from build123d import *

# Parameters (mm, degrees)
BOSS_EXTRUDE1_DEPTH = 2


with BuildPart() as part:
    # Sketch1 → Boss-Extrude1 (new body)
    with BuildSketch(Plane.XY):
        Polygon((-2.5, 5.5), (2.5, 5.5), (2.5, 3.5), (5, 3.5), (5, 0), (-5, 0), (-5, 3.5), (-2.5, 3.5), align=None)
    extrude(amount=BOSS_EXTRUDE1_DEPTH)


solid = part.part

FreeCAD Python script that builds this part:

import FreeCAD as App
import Part
import Sketcher

V = App.Vector
Q = App.Units.Quantity

doc = App.newDocument("Part")
body = doc.addObject("PartDesign::Body", "Body")

sketch1 = body.newObject("Sketcher::SketchObject", "Sketch")
sketch1.AttachmentSupport = (doc.getObject("XY_Plane"), [""])
sketch1.MapMode = "FlatFace"
sketch1.addGeometry(Part.LineSegment(V(2.5, 5.5, 0), V(-2.5, 5.5, 0)), False)
sketch1.addGeometry(Part.LineSegment(V(-2.5, 5.5, 0), V(-2.5, 3.5, 0)), False)
sketch1.addGeometry(Part.LineSegment(V(-2.5, 3.5, 0), V(-5, 3.5, 0)), False)
sketch1.addGeometry(Part.LineSegment(V(-5, 3.5, 0), V(-5, 0, 0)), False)
sketch1.addGeometry(Part.LineSegment(V(-5, 0, 0), V(5, 0, 0)), False)
sketch1.addGeometry(Part.LineSegment(V(5, 0, 0), V(5, 3.5, 0)), False)
sketch1.addGeometry(Part.LineSegment(V(5, 3.5, 0), V(2.5, 3.5, 0)), False)
sketch1.addGeometry(Part.LineSegment(V(2.5, 3.5, 0), V(2.5, 5.5, 0)), False)
sketch1.addConstraint(Sketcher.Constraint("Coincident", 0, 2, 1, 1))
sketch1.addConstraint(Sketcher.Constraint("Coincident", 1, 2, 2, 1))
sketch1.addConstraint(Sketcher.Constraint("Coincident", 2, 2, 3, 1))
sketch1.addConstraint(Sketcher.Constraint("Coincident", 3, 2, 4, 1))
sketch1.addConstraint(Sketcher.Constraint("Coincident", 4, 2, 5, 1))
sketch1.addConstraint(Sketcher.Constraint("Coincident", 5, 2, 6, 1))
sketch1.addConstraint(Sketcher.Constraint("Coincident", 6, 2, 7, 1))
sketch1.addConstraint(Sketcher.Constraint("Coincident", 7, 2, 0, 1))
sketch1.addConstraint(Sketcher.Constraint("Horizontal", 0))
sketch1.addConstraint(Sketcher.Constraint("Vertical", 1))
sketch1.addConstraint(Sketcher.Constraint("Horizontal", 2))
sketch1.addConstraint(Sketcher.Constraint("Vertical", 3))
sketch1.addConstraint(Sketcher.Constraint("Horizontal", 4))
sketch1.addConstraint(Sketcher.Constraint("Vertical", 5))
sketch1.addConstraint(Sketcher.Constraint("Horizontal", 6))
sketch1.addConstraint(Sketcher.Constraint("Vertical", 7))
sketch1.addConstraint(Sketcher.Constraint("Symmetric", 3, 2, 4, 2, -1, 1))
sketch1.addConstraint(Sketcher.Constraint("Symmetric", 1, 2, 6, 2, -2))
sketch1.addConstraint(Sketcher.Constraint("DistanceX", 0, 2, 0, 1, Q("5 mm")))
sketch1.addConstraint(Sketcher.Constraint("DistanceX", 4, 1, 4, 2, Q("10 mm")))
sketch1.addConstraint(Sketcher.Constraint("DistanceY", 1, 2, 1, 1, Q("2 mm")))
sketch1.addConstraint(Sketcher.Constraint("DistanceY", 3, 2, 3, 1, Q("3.5 mm")))
pad1 = body.newObject("PartDesign::Pad", "Pad")
pad1.Profile = sketch1
pad1.Length = 2

doc.recompute()
